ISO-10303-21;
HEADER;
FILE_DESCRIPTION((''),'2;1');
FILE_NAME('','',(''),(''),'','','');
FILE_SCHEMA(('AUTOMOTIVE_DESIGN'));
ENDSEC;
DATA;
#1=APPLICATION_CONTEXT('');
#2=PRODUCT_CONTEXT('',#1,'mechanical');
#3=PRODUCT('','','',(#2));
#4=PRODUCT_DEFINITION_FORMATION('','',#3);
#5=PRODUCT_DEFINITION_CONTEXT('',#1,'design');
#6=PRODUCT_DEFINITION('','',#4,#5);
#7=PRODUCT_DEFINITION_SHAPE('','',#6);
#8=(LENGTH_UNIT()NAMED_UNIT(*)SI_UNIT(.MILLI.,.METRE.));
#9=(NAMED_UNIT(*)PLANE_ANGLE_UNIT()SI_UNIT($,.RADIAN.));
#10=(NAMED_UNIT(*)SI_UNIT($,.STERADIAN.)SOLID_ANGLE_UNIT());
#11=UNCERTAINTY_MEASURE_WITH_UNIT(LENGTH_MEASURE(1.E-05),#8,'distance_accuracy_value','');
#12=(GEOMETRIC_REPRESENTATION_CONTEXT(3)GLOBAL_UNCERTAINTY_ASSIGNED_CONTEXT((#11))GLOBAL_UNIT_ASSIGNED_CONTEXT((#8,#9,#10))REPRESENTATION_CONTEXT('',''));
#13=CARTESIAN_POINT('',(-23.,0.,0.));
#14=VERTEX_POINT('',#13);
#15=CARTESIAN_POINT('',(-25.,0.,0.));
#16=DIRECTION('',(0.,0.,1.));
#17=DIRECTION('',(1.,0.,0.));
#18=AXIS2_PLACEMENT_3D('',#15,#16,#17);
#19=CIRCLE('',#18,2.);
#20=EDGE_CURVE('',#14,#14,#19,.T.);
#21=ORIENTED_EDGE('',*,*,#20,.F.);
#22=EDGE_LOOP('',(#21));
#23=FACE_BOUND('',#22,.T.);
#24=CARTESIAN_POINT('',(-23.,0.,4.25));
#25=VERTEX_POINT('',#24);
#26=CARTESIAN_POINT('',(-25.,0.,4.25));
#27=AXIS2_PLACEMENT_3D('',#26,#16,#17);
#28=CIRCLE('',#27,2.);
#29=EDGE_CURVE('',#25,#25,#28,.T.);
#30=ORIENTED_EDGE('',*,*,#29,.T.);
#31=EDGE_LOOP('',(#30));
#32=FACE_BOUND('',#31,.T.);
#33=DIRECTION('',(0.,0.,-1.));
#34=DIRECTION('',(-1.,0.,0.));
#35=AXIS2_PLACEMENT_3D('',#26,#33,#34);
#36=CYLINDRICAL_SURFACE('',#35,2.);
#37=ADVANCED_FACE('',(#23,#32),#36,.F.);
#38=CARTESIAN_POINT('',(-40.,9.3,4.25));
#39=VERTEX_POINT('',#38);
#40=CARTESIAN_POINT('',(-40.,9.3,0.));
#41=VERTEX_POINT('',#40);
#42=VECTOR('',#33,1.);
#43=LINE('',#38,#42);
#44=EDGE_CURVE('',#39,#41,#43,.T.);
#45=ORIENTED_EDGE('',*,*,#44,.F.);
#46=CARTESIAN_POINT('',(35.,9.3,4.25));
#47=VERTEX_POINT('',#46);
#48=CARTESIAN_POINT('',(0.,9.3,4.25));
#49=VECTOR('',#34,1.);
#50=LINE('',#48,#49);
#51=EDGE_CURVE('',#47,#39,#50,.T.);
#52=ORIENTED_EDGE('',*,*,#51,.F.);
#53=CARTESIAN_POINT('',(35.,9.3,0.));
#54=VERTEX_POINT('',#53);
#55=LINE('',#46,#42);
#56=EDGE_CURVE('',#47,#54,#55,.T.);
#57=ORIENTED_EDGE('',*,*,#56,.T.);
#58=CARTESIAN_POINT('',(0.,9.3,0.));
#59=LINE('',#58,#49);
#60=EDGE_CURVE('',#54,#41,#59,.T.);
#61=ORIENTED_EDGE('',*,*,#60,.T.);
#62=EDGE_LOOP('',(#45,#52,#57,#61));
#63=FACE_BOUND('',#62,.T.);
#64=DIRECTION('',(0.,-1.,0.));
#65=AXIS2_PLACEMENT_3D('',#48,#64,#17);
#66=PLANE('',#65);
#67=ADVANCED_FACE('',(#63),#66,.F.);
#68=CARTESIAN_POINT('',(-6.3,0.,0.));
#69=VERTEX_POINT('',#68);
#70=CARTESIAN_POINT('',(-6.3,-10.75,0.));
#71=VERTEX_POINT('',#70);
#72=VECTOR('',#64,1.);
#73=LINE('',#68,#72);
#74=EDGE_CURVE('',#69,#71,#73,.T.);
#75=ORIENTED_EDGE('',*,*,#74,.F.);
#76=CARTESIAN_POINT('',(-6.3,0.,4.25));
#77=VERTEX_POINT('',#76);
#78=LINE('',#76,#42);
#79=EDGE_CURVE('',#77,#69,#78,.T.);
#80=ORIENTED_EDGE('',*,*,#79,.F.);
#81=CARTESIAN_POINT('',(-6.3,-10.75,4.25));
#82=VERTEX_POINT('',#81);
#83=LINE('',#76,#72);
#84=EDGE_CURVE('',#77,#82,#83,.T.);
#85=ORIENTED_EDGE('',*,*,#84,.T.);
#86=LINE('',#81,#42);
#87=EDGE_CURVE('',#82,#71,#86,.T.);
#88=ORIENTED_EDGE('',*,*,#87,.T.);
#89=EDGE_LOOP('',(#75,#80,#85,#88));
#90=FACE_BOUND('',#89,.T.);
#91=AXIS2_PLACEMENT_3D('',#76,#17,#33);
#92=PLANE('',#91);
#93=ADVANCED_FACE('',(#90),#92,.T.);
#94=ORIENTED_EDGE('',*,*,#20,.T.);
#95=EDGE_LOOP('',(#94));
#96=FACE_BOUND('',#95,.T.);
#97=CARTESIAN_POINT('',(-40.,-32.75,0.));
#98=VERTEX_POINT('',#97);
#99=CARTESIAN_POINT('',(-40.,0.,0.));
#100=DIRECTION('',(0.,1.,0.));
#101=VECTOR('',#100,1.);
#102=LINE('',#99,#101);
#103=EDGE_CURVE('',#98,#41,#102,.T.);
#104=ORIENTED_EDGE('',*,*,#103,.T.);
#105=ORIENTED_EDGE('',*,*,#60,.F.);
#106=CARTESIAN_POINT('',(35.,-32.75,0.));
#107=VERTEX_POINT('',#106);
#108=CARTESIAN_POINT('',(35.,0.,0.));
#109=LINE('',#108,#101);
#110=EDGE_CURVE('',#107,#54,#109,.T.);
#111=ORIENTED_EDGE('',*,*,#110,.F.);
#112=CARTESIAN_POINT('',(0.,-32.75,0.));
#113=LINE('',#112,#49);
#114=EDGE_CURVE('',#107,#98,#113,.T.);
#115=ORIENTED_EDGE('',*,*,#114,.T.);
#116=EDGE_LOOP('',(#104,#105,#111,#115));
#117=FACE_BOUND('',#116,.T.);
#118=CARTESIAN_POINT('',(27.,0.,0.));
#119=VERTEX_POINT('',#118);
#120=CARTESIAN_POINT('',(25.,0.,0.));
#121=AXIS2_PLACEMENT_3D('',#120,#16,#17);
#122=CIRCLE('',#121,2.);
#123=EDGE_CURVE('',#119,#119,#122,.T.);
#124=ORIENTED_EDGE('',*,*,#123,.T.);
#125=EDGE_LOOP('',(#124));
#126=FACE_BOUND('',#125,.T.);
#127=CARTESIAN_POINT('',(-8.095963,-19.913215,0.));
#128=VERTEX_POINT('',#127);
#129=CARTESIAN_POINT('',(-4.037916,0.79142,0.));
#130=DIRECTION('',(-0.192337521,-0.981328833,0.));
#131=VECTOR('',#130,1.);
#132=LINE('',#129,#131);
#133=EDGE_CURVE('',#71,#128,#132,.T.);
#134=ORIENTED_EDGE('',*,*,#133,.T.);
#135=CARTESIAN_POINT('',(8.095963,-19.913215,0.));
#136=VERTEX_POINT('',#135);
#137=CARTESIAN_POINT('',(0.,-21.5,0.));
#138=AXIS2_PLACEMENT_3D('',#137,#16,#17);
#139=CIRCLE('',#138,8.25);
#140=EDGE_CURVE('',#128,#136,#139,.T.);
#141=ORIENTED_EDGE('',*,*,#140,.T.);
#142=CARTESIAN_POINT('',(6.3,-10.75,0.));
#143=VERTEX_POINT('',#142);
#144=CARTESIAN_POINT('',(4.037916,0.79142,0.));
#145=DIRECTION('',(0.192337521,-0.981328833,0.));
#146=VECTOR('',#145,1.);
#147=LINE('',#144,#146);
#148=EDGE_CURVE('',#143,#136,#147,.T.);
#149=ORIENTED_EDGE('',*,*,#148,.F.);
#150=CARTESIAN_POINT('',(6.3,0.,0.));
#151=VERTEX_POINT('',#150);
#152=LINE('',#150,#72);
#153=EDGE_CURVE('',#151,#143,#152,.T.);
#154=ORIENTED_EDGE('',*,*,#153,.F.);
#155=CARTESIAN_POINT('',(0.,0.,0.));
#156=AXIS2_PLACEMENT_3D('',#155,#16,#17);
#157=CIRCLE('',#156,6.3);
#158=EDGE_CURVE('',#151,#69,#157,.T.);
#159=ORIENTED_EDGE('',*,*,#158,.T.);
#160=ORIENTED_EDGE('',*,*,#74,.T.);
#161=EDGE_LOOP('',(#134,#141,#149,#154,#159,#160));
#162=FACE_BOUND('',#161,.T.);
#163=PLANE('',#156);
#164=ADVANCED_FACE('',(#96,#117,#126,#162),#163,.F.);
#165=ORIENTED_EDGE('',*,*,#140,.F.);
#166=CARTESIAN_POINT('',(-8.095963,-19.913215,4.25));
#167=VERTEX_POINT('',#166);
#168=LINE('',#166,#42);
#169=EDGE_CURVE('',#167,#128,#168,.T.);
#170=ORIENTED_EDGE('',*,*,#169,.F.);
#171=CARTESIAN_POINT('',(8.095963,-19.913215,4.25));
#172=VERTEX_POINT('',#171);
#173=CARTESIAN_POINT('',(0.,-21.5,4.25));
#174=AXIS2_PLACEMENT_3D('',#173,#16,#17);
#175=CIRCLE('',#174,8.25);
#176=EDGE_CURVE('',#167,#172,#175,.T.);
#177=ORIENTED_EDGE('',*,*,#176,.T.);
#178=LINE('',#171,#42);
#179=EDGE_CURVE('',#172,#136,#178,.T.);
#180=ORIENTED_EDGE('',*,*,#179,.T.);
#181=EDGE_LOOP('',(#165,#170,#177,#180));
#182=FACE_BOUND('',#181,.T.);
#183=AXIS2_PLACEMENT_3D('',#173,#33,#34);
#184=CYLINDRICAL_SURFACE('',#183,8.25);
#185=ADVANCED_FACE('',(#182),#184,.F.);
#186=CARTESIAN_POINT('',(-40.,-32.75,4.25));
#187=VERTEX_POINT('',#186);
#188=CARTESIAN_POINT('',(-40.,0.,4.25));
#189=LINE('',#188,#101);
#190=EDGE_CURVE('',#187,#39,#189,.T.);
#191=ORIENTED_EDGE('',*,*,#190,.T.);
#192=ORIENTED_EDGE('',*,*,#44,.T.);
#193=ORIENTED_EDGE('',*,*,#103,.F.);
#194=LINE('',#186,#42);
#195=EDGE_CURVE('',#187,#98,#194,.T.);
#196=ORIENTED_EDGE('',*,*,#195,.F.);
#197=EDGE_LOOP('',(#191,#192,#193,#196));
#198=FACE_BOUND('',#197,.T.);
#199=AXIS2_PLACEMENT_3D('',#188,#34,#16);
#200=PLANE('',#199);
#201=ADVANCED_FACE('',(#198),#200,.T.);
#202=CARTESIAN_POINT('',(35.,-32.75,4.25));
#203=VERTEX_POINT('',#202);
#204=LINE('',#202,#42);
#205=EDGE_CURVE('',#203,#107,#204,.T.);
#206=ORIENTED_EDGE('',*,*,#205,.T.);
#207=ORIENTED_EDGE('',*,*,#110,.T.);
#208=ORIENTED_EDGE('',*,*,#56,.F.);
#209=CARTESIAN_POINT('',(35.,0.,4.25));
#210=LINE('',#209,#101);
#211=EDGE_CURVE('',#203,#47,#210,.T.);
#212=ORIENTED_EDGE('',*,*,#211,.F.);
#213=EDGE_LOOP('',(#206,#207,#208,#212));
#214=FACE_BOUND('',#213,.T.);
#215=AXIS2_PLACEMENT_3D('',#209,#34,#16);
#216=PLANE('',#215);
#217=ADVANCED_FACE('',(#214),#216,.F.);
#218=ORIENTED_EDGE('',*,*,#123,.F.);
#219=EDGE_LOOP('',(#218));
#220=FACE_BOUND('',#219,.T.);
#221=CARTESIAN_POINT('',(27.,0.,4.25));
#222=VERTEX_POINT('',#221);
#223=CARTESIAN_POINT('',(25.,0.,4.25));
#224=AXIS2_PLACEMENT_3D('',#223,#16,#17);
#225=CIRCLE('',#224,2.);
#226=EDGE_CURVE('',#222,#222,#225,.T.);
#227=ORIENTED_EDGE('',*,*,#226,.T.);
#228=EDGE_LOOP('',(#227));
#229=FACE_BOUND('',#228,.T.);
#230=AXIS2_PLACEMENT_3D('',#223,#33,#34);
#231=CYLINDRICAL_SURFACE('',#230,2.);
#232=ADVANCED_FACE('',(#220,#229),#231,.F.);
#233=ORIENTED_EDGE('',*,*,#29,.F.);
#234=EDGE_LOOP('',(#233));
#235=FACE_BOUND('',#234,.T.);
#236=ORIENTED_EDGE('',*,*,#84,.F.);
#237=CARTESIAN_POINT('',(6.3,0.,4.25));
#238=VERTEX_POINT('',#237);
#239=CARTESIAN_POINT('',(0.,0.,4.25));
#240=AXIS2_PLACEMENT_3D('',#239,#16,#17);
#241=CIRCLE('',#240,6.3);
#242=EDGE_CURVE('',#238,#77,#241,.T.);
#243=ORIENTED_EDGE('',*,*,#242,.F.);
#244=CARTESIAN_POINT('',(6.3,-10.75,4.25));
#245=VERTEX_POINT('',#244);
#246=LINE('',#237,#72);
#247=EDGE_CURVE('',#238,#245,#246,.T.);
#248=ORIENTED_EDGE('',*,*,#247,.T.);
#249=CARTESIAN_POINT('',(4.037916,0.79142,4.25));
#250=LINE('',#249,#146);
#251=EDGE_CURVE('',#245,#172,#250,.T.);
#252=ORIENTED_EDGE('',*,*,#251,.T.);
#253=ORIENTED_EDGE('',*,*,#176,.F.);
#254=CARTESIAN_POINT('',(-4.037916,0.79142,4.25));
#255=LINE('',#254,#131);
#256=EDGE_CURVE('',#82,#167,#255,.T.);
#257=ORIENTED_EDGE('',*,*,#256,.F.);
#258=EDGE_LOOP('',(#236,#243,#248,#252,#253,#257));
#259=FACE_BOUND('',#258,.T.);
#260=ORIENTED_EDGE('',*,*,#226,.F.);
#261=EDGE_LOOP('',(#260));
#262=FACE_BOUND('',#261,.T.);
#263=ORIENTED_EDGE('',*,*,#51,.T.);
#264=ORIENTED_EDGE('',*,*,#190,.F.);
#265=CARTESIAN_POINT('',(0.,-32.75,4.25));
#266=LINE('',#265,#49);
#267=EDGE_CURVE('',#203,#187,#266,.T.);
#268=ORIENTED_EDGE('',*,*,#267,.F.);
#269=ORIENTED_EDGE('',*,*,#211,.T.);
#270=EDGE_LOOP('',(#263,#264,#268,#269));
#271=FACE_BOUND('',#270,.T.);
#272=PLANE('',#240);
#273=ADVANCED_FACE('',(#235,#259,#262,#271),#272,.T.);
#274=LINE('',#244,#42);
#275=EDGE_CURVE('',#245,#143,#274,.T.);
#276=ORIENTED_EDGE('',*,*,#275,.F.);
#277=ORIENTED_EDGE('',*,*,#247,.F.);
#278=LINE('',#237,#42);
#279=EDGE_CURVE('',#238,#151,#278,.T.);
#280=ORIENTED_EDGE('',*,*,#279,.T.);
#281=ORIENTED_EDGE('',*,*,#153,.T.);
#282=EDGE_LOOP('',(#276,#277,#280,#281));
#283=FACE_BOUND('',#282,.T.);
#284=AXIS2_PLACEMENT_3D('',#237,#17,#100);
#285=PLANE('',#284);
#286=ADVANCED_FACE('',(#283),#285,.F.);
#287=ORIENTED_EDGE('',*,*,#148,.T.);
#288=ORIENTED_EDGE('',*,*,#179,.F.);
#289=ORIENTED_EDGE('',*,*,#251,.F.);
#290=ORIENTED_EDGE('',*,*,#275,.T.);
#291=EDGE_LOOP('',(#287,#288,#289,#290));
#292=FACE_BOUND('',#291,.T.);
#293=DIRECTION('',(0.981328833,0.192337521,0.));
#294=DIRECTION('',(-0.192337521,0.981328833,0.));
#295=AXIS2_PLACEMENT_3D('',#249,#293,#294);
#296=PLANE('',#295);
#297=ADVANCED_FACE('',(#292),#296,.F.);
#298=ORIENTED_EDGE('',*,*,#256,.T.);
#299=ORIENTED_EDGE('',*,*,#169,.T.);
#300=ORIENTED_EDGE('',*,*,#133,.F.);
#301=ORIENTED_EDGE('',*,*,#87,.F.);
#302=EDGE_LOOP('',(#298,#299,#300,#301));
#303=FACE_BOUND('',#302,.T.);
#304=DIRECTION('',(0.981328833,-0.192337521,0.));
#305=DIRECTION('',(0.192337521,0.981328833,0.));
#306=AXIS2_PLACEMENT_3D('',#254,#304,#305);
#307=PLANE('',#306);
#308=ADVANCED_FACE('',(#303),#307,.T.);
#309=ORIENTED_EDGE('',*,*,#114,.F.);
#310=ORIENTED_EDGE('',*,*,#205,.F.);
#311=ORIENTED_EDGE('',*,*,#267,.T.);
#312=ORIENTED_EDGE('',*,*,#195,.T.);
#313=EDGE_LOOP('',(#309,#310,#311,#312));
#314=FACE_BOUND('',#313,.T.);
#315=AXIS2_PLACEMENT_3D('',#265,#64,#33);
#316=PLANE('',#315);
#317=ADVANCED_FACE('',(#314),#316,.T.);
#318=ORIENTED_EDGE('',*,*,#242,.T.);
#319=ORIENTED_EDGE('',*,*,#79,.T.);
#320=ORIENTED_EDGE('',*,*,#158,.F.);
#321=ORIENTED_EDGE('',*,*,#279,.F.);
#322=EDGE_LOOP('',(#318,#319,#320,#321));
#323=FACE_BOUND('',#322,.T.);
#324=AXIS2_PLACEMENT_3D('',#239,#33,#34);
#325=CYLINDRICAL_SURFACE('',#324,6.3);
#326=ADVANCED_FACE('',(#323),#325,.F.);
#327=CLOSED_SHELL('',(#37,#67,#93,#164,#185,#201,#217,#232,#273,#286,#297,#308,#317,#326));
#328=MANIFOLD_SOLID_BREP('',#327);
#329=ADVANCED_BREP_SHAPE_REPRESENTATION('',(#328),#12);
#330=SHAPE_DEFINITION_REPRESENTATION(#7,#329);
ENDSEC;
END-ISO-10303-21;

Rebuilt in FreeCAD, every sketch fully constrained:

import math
import FreeCAD as App
import Part
import Sketcher


def add_polygon(sketch, points):
    """Adds a closed chain of lines whose ends are joined by coincident constraints."""
    first, n = sketch.GeometryCount, len(points)
    for a, b in zip(points, points[1:] + points[:1]):
        sketch.addGeometry(Part.LineSegment(App.Vector(*a, 0), App.Vector(*b, 0)), False)
    for i in range(n):
        sketch.addConstraint(Sketcher.Constraint("Coincident", first + i, 2, first + (i + 1) % n, 1))

doc = App.newDocument("Part")
body = doc.addObject("PartDesign::Body", "Body")

sketch1 = doc.addObject("Sketcher::SketchObject", "Sketch")
body.addObject(sketch1)
sketch1.AttachmentSupport = (doc.XY_Plane, [""])
sketch1.MapMode = "FlatFace"
add_polygon(sketch1, [(-40, 9.3), (-40, -32.8), (35, -32.8), (35, 9.3)])
sketch1.addGeometry(Part.Circle(App.Vector(-25, 0, 0), App.Vector(0, 0, 1), 2), False)
sketch1.addGeometry(Part.ArcOfCircle(Part.Circle(App.Vector(0, -21.5, 0), App.Vector(0, 0, 1), 8.2), math.radians(169), math.radians(371)), False)
sketch1.addGeometry(Part.LineSegment(App.Vector(-8.1, -19.9, 0), App.Vector(-6.3, -10.8, 0)), False)
sketch1.addGeometry(Part.LineSegment(App.Vector(-6.3, -10.8, 0), App.Vector(-6.3, 0, 0)), False)
sketch1.addGeometry(Part.ArcOfCircle(Part.Circle(App.Vector(0, 0, 0), App.Vector(0, 0, 1), 6.3), math.radians(0), math.radians(180)), False)
sketch1.addGeometry(Part.LineSegment(App.Vector(6.3, 0, 0), App.Vector(6.3, -10.8, 0)), False)
sketch1.addGeometry(Part.LineSegment(App.Vector(6.3, -10.8, 0), App.Vector(8.1, -19.9, 0)), False)
sketch1.addGeometry(Part.Circle(App.Vector(25, 0, 0), App.Vector(0, 0, 1), 2), False)
sketch1.addConstraint([
    Sketcher.Constraint("Tangent", 5, 1, 6, 1),
    Sketcher.Constraint("Coincident", 6, 2, 7, 1),
    Sketcher.Constraint("Tangent", 7, 2, 8, 2),
    Sketcher.Constraint("Tangent", 8, 1, 9, 1),
    Sketcher.Constraint("Coincident", 9, 2, 10, 1),
    Sketcher.Constraint("Tangent", 10, 2, 5, 2),
    Sketcher.Constraint("Vertical", 0),
    Sketcher.Constraint("Horizontal", 1),
    Sketcher.Constraint("Vertical", 2),
    Sketcher.Constraint("Horizontal", 3),
    Sketcher.Constraint("Vertical", 7),
    Sketcher.Constraint("Vertical", 9),
    Sketcher.Constraint("Coincident", 8, 3, -1, 1),
    Sketcher.Constraint("Equal", 4, 11),
    Sketcher.Constraint("Symmetric", 4, 3, 11, 3, -1, 1),
    Sketcher.Constraint("Symmetric", 5, 1, 10, 2, -2),
    Sketcher.Constraint("PointOnObject", 4, 3, -1),
    Sketcher.Constraint("Diameter", 4, 4.0),
    Sketcher.Constraint("Radius", 8, 6.3),
    Sketcher.Constraint("DistanceX", 1, 1, 1, 2, 75.0),
    Sketcher.Constraint("Radius", 5, 8.25),
    Sketcher.Constraint("DistanceX", 4, 3, -1, 1, 25.0),
    Sketcher.Constraint("DistanceX", 0, 2, -1, 1, 40.0),
    Sketcher.Constraint("DistanceY", 0, 2, 0, 1, 42.05),
    Sketcher.Constraint("DistanceY", 7, 1, 7, 2, 10.75),
    Sketcher.Constraint("DistanceY", 5, 3, -1, 1, 21.5),
    Sketcher.Constraint("DistanceY", -1, 1, 2, 2, 9.3),
])
pad1 = doc.addObject("PartDesign::Pad", "Pad")
body.addObject(pad1)
pad1.Profile = sketch1
pad1.Length = 4.25

doc.recompute()
